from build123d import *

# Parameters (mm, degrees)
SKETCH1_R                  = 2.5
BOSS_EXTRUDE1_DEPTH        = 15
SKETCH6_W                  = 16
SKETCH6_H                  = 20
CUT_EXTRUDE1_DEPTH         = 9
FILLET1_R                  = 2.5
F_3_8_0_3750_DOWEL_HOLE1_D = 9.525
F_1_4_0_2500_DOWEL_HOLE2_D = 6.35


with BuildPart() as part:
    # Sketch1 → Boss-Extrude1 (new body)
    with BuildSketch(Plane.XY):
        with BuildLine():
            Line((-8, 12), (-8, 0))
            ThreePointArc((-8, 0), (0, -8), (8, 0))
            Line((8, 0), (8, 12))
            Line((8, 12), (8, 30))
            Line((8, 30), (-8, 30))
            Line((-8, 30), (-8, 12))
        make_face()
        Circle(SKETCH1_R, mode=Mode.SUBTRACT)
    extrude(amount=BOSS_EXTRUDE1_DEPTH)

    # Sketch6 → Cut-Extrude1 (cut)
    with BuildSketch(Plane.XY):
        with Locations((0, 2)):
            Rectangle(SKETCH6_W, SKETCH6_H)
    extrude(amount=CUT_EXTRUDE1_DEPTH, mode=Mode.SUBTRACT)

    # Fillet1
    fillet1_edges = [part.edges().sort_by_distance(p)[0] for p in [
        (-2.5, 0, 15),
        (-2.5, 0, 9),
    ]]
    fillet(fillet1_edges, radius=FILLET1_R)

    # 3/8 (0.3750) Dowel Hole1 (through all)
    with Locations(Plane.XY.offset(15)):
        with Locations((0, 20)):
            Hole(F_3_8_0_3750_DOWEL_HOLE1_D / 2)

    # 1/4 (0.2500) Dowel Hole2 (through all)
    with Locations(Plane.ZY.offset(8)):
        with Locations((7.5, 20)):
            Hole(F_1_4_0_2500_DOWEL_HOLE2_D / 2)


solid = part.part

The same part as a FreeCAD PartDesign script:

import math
import FreeCAD as App
import Part
import Sketcher
Q = App.Units.Quantity


def edges_at(feature, points):
    """Names of the edges that pass closest to the given points."""
    edges = feature.Shape.Edges
    near = lambda p: min(range(len(edges)), key=lambda i: edges[i].distToShape(Part.Vertex(*p))[0])
    return sorted({f"Edge{near(p) + 1}" for p in points})

doc = App.newDocument("Part")
body = doc.addObject("PartDesign::Body", "Body")

sketch1 = body.newObject("Sketcher::SketchObject", "Sketch")
sketch1.AttachmentSupport = (doc.getObject("XY_Plane"), [""])
sketch1.MapMode = "FlatFace"
sketch1.addGeometry([
    Part.ArcOfCircle(Part.Circle(App.Vector(0, 0, 0), App.Vector(0, 0, 1), 8), math.radians(180), math.radians(360)),
    Part.LineSegment(App.Vector(8, 0, 0), App.Vector(8, 30, 0)),
    Part.LineSegment(App.Vector(8, 30, 0), App.Vector(-8, 30, 0)),
    Part.LineSegment(App.Vector(-8, 30, 0), App.Vector(-8, 0, 0)),
    Part.Circle(App.Vector(0, 0, 0), App.Vector(0, 0, 1), 2.5),
], False)
sketch1.addConstraint([
    Sketcher.Constraint("Tangent", 0, 2, 1, 1),
    Sketcher.Constraint("Coincident", 1, 2, 2, 1),
    Sketcher.Constraint("Coincident", 2, 2, 3, 1),
    Sketcher.Constraint("Tangent", 3, 2, 0, 1),
    Sketcher.Constraint("Vertical", 1),
    Sketcher.Constraint("Horizontal", 2),
    Sketcher.Constraint("Vertical", 3),
    Sketcher.Constraint("Coincident", 0, 3, -1, 1),
    Sketcher.Constraint("Coincident", 4, 3, -1, 1),
    Sketcher.Constraint("Diameter", 4, Q("5 mm")),
    Sketcher.Constraint("Radius", 0, Q("8 mm")),
    Sketcher.Constraint("DistanceY", 1, 1, 1, 2, Q("30 mm")),
])
pad1 = body.newObject("PartDesign::Pad", "Pad")
pad1.Profile = sketch1
pad1.Length = 15

sketch2 = body.newObject("Sketcher::SketchObject", "Sketch001")
sketch2.AttachmentSupport = (doc.getObject("XY_Plane"), [""])
sketch2.MapMode = "FlatFace"
sketch2.addGeometry([
    Part.LineSegment(App.Vector(-8, 12, 0), App.Vector(-8, -8, 0)),
    Part.LineSegment(App.Vector(-8, -8, 0), App.Vector(8, -8, 0)),
    Part.LineSegment(App.Vector(8, -8, 0), App.Vector(8, 12, 0)),
    Part.LineSegment(App.Vector(8, 12, 0), App.Vector(-8, 12, 0)),
], False)
sketch2.addConstraint([
    Sketcher.Constraint("Coincident", 0, 2, 1, 1),
    Sketcher.Constraint("Coincident", 1, 2, 2, 1),
    Sketcher.Constraint("Coincident", 2, 2, 3, 1),
    Sketcher.Constraint("Coincident", 3, 2, 0, 1),
    Sketcher.Constraint("Vertical", 0),
    Sketcher.Constraint("Horizontal", 1),
    Sketcher.Constraint("Vertical", 2),
    Sketcher.Constraint("Horizontal", 3),
    Sketcher.Constraint("DistanceX", 1, 1, 1, 2, Q("16 mm")),
    Sketcher.Constraint("DistanceY", 0, 2, 0, 1, Q("20 mm")),
    Sketcher.Constraint("DistanceX", 0, 2, -1, 1, Q("8 mm")),
    Sketcher.Constraint("DistanceY", 0, 2, -1, 1, Q("8 mm")),
])
pocket1 = body.newObject("PartDesign::Pocket", "Pocket")
pocket1.Profile = sketch2
pocket1.Length = 9
pocket1.Reversed = True
doc.recompute()

fillet = body.newObject("PartDesign::Fillet", "Fillet")
fillet.Base = (pocket1, edges_at(pocket1, [(-2.5, 0, 15), (-2.5, 0, 9)]))
fillet.Radius = 2.5

sketch3 = body.newObject("Sketcher::SketchObject", "Sketch002")
sketch3.AttachmentSupport = (doc.getObject("XY_Plane"), [""])
sketch3.MapMode = "FlatFace"
sketch3.AttachmentOffset = App.Placement(App.Vector(0, 0, 15), App.Rotation())
sketch3.addGeometry(Part.Circle(App.Vector(0, 20, 0), App.Vector(0, 0, 1), 4.8), False)
sketch3.addConstraint([
    Sketcher.Constraint("PointOnObject", 0, 3, -2),
    Sketcher.Constraint("Diameter", 0, Q("9.525 mm")),
    Sketcher.Constraint("DistanceY", -1, 1, 0, 3, Q("20 mm")),
])
doc.recompute()
hole = body.newObject("PartDesign::Hole", "Hole")
hole.Profile = sketch3
hole.ThreadType = "None"
hole.Diameter = 9.525
hole.DepthType = "ThroughAll"

sketch4 = body.newObject("Sketcher::SketchObject", "Sketch003")
sketch4.AttachmentSupport = (doc.getObject("YZ_Plane"), [""])
sketch4.MapMode = "FlatFace"
sketch4.AttachmentOffset = App.Placement(App.Vector(0, 0, -8), App.Rotation())
sketch4.addGeometry(Part.Circle(App.Vector(20, 7.5, 0), App.Vector(0, 0, 1), 3.2), False)
sketch4.addConstraint([
    Sketcher.Constraint("Diameter", 0, Q("6.35 mm")),
    Sketcher.Constraint("DistanceX", -1, 1, 0, 3, Q("20 mm")),
    Sketcher.Constraint("DistanceY", -1, 1, 0, 3, Q("7.5 mm")),
])
doc.recompute()
hole2 = body.newObject("PartDesign::Hole", "Hole001")
hole2.Profile = sketch4
hole2.ThreadType = "None"
hole2.Diameter = 6.35
hole2.DepthType = "ThroughAll"
hole2.Reversed = True

doc.recompute()
